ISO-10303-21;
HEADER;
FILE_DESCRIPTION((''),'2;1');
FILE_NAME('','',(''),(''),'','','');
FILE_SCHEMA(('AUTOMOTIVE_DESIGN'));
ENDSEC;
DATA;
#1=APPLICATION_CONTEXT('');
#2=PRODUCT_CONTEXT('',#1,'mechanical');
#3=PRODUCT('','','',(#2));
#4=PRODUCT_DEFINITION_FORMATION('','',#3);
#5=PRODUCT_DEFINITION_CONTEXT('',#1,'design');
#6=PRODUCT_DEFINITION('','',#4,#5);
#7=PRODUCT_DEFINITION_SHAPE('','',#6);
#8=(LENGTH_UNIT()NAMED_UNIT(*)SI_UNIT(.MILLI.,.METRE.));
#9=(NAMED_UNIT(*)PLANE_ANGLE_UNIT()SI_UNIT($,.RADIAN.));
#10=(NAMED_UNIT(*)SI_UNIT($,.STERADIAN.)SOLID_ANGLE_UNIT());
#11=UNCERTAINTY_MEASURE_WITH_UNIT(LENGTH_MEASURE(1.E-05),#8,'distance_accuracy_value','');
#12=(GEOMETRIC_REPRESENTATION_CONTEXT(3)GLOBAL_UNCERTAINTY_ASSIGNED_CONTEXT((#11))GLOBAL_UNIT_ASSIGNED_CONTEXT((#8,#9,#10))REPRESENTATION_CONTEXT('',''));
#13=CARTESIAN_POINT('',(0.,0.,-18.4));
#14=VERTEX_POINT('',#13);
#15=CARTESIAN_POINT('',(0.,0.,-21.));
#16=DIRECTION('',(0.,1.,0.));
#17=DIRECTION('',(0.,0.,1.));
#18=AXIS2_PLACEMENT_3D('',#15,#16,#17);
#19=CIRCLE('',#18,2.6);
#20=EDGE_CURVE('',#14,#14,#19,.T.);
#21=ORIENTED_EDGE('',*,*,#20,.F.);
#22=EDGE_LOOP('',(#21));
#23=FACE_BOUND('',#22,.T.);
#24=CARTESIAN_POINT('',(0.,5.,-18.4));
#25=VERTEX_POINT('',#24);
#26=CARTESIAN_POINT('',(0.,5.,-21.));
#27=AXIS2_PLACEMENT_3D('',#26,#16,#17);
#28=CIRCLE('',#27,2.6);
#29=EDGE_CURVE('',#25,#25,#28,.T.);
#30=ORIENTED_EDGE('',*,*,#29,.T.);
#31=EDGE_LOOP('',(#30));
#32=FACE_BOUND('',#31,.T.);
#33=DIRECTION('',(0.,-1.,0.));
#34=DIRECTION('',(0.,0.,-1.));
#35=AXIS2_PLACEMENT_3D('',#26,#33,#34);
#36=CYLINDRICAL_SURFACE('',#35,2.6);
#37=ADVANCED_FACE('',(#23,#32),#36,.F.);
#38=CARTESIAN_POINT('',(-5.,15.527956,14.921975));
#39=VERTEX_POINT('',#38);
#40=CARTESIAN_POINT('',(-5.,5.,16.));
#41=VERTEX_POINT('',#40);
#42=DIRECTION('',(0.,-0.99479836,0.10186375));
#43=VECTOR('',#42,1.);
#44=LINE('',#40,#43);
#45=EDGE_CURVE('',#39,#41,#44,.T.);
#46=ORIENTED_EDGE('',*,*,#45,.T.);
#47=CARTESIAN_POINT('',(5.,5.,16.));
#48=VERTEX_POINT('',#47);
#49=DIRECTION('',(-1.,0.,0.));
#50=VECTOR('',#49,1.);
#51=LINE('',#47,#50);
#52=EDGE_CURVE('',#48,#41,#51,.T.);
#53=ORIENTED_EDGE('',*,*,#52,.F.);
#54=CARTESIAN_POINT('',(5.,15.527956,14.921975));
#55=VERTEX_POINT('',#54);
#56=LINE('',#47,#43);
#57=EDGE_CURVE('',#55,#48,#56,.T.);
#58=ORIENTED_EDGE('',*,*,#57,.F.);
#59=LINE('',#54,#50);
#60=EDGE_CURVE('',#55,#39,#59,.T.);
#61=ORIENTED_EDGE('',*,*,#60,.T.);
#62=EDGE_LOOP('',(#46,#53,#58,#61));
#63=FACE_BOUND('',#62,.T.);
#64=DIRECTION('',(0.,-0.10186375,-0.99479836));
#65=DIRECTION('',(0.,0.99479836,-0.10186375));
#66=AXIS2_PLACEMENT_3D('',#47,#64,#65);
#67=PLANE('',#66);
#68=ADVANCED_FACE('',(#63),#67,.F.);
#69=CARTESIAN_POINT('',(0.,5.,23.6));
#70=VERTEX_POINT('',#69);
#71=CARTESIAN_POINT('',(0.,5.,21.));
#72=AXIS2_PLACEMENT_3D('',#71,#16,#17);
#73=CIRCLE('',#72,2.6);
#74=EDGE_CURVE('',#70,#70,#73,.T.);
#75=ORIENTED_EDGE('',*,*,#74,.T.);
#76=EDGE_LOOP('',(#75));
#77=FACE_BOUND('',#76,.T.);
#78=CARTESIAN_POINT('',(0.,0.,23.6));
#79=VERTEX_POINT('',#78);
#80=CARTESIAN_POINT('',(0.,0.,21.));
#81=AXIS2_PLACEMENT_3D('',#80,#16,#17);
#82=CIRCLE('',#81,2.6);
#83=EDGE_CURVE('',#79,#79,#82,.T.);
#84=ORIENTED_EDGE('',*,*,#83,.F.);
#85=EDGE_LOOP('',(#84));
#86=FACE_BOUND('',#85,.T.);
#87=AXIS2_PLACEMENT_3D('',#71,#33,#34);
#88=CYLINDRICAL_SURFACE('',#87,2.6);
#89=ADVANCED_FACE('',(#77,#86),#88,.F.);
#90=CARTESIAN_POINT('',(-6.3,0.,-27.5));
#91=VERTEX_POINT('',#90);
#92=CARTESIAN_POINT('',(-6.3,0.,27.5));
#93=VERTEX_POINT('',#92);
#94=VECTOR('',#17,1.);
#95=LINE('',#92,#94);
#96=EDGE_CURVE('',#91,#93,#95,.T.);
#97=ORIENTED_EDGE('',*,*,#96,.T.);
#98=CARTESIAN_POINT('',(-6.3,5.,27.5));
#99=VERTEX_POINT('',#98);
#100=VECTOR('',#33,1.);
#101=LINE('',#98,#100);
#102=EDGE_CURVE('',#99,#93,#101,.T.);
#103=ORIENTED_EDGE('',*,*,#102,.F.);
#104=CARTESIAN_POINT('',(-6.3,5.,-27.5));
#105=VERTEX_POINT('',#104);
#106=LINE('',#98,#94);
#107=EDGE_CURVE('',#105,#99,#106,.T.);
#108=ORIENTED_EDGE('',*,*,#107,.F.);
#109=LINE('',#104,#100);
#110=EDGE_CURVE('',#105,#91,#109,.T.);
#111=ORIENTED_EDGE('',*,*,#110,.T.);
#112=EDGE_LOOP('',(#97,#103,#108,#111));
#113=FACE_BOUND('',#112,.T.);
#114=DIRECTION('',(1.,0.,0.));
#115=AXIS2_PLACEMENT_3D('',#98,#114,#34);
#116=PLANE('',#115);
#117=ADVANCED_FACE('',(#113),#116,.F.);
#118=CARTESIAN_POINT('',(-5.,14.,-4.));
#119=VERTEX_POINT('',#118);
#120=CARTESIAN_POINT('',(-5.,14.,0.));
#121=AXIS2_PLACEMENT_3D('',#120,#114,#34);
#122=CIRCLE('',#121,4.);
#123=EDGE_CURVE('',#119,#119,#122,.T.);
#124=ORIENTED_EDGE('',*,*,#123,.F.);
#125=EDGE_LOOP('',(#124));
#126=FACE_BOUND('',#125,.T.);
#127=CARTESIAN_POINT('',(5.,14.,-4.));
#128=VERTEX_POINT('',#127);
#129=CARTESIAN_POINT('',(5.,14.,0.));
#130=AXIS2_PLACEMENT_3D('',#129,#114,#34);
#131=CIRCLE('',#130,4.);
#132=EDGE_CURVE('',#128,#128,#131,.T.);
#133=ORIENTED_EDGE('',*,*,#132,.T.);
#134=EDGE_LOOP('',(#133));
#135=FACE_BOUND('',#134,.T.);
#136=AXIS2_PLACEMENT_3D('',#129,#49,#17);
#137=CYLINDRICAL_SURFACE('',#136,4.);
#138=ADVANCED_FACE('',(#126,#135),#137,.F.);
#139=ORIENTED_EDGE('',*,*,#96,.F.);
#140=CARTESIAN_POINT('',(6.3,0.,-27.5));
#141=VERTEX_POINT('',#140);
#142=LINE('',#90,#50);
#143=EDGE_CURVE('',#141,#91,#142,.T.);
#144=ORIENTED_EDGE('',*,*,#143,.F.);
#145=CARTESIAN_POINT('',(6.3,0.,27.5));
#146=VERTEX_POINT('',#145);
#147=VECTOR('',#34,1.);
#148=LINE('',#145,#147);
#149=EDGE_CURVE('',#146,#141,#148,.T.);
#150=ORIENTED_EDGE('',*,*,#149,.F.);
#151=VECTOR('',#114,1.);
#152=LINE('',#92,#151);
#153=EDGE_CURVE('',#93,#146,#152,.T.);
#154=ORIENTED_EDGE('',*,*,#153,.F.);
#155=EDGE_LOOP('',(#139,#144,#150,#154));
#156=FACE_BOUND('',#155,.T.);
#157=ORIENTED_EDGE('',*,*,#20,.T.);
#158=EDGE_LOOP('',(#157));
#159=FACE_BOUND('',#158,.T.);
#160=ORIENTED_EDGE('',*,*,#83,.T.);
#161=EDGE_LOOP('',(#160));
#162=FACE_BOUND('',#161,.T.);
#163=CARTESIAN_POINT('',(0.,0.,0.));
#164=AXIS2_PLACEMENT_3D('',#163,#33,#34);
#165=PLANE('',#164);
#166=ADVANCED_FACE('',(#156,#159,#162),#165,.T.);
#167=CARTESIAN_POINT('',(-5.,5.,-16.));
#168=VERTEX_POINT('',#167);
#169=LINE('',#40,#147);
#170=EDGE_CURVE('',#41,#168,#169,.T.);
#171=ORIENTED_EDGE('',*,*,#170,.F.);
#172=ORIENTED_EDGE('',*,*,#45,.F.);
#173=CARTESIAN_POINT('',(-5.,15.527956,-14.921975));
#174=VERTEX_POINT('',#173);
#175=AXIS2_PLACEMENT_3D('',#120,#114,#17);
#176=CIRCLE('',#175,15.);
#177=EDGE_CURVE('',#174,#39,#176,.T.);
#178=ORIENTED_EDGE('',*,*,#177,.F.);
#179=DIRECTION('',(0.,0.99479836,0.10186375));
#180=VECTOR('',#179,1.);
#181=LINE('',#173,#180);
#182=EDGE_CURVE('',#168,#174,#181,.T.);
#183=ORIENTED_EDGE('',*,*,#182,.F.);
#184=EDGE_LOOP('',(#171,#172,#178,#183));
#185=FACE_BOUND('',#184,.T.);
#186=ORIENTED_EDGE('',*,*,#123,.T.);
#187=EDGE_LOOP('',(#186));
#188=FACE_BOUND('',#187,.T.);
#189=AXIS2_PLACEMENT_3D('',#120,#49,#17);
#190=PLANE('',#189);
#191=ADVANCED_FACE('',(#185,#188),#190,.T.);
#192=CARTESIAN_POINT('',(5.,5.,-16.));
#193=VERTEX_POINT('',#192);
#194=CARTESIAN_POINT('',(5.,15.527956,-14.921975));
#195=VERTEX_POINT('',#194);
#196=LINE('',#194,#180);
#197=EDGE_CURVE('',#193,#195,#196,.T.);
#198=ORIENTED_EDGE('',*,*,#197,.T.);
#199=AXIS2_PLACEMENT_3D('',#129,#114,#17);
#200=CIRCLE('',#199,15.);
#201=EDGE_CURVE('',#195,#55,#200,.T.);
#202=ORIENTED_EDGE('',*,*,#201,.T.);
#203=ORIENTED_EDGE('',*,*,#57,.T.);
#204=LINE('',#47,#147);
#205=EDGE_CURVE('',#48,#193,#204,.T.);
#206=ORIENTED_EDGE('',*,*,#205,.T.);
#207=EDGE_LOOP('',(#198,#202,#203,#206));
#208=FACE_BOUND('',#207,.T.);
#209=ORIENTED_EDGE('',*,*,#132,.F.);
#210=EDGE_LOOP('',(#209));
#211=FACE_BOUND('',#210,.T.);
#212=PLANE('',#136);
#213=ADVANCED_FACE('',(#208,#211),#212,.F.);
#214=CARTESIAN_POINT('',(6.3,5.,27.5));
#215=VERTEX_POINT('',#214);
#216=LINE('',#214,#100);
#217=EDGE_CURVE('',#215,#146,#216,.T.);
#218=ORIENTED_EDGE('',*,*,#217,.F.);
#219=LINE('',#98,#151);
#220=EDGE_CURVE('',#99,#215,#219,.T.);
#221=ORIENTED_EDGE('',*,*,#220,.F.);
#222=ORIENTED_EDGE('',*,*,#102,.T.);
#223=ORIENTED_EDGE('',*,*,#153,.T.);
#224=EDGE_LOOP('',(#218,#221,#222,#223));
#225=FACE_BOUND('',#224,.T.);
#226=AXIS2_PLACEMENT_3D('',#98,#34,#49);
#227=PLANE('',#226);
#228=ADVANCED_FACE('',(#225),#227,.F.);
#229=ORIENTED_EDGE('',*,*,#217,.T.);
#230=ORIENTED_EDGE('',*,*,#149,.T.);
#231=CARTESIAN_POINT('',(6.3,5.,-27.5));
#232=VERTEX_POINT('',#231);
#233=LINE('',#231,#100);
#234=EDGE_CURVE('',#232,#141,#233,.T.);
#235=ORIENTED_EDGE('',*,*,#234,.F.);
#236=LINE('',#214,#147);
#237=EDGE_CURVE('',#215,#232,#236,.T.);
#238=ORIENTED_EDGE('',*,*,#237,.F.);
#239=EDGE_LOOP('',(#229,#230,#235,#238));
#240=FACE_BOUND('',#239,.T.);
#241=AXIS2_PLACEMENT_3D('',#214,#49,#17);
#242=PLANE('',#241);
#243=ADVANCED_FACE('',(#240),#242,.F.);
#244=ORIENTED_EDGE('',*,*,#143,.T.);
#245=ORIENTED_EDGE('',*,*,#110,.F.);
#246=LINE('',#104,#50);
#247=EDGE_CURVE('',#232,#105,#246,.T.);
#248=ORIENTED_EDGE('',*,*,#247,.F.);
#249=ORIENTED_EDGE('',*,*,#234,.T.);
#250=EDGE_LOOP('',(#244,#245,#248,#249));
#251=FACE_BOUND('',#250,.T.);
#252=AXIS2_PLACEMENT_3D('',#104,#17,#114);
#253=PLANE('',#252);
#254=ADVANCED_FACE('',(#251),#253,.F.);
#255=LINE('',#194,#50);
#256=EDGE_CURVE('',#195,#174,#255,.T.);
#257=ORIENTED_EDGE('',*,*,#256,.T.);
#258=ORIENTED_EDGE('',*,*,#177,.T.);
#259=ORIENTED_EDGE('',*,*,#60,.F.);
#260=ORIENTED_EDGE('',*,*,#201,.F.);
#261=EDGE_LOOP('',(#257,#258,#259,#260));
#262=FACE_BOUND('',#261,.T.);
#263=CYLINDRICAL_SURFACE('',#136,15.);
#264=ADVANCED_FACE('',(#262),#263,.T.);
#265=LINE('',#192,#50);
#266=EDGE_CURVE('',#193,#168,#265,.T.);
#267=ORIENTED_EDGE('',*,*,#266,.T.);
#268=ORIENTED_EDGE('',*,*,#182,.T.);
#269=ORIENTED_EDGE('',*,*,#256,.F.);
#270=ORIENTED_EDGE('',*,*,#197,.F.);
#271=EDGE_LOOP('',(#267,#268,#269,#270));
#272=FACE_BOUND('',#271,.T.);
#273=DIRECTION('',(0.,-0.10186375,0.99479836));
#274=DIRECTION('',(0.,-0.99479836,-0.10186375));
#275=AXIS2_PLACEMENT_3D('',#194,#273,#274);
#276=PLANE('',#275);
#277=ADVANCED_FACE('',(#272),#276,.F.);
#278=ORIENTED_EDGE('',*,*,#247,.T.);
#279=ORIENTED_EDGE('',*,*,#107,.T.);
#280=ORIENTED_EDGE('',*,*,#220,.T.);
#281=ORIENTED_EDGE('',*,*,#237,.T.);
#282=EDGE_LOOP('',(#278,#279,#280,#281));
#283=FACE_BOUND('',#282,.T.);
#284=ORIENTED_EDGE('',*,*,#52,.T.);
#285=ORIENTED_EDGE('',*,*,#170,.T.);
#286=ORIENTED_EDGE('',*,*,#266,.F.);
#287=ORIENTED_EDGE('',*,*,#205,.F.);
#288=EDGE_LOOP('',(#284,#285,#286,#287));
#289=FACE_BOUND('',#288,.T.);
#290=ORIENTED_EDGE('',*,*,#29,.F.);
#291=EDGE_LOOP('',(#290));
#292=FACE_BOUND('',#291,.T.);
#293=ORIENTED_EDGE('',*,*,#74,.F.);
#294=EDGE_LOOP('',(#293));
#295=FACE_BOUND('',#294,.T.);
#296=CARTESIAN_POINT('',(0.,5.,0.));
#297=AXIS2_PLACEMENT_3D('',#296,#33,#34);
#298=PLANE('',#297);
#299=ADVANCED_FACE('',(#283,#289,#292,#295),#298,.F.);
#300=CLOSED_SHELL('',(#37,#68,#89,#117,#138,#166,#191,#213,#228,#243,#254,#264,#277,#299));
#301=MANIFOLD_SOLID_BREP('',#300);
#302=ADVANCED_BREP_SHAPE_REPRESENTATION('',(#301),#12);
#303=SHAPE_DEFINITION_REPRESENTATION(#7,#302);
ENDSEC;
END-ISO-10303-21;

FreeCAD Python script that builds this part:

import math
import FreeCAD as App
import Part
import Sketcher

V = App.Vector
Q = App.Units.Quantity


def add_polygon(sketch, points):
    """Adds a closed chain of lines whose ends are joined by coincident constraints."""
    first, n = sketch.GeometryCount, len(points)
    for a, b in zip(points, points[1:] + points[:1]):
        sketch.addGeometry(Part.LineSegment(App.Vector(*a, 0), App.Vector(*b, 0)), False)
    for i in range(n):
        sketch.addConstraint(Sketcher.Constraint("Coincident", first + i, 2, first + (i + 1) % n, 1))

doc = App.newDocument("Part")
body = doc.addObject("PartDesign::Body", "Body")

sketch1 = body.newObject("Sketcher::SketchObject", "Sketch")
sketch1.AttachmentSupport = (doc.getObject("XZ_Plane"), [""])
sketch1.MapMode = "FlatFace"
add_polygon(sketch1, [(-6.3, -27.5), (-6.3, 27.5), (6.3, 27.5), (6.3, -27.5)])
sketch1.addGeometry(Part.Circle(V(0, 21, 0), V(0, 0, 1), 2.6), False)
sketch1.addGeometry(Part.Circle(V(0, -21, 0), V(0, 0, 1), 2.6), False)
sketch1.addConstraint([
    Sketcher.Constraint("Vertical", 0),
    Sketcher.Constraint("Horizontal", 1),
    Sketcher.Constraint("Vertical", 2),
    Sketcher.Constraint("Horizontal", 3),
    Sketcher.Constraint("Equal", 4, 5),
    Sketcher.Constraint("Symmetric", 4, 3, 5, 3, -1, 1),
    Sketcher.Constraint("Symmetric", 0, 2, 2, 2, -1, 1),
    Sketcher.Constraint("PointOnObject", 4, 3, -2),
    Sketcher.Constraint("Diameter", 4, Q("5.2 mm")),
    Sketcher.Constraint("DistanceY", 0, 1, 0, 2, Q("55 mm")),
    Sketcher.Constraint("DistanceX", 1, 1, 1, 2, Q("12.6 mm")),
    Sketcher.Constraint("DistanceY", -1, 1, 4, 3, Q("21 mm")),
])
pad1 = body.newObject("PartDesign::Pad", "Pad")
pad1.Profile = sketch1
pad1.Length = 5
pad1.Reversed = True

sketch2 = body.newObject("Sketcher::SketchObject", "Sketch001")
sketch2.AttachmentSupport = (doc.getObject("YZ_Plane"), [""])
sketch2.MapMode = "FlatFace"
sketch2.addGeometry([
    Part.LineSegment(V(15.5, 14.9, 0), V(5, 16, 0)),
    Part.LineSegment(V(5, 16, 0), V(5, -16, 0)),
    Part.LineSegment(V(5, -16, 0), V(15.5, -14.9, 0)),
    Part.ArcOfCircle(Part.Circle(V(14, 0, 0), V(0, 0, 1), 15), math.radians(-84), math.radians(84)),
    Part.Circle(V(14, 0, 0), V(0, 0, 1), 4),
], False)
sketch2.addConstraint([
    Sketcher.Constraint("Coincident", 0, 2, 1, 1),
    Sketcher.Constraint("Coincident", 1, 2, 2, 1),
    Sketcher.Constraint("Tangent", 2, 2, 3, 1),
    Sketcher.Constraint("Tangent", 3, 2, 0, 1),
    Sketcher.Constraint("Vertical", 1),
    Sketcher.Constraint("Coincident", 4, 3, 3, 3),
    Sketcher.Constraint("Symmetric", 2, 2, 3, 2, -1),
    Sketcher.Constraint("Diameter", 4, Q("8 mm")),
    Sketcher.Constraint("Radius", 3, Q("15 mm")),
    Sketcher.Constraint("DistanceY", 1, 2, 1, 1, Q("32 mm")),
    Sketcher.Constraint("DistanceX", -1, 1, 3, 3, Q("14 mm")),
    Sketcher.Constraint("DistanceX", -1, 1, 0, 2, Q("5 mm")),
])
pad2 = body.newObject("PartDesign::Pad", "Pad001")
pad2.Profile = sketch2
pad2.Length = 10
pad2.Midplane = True

doc.recompute()
